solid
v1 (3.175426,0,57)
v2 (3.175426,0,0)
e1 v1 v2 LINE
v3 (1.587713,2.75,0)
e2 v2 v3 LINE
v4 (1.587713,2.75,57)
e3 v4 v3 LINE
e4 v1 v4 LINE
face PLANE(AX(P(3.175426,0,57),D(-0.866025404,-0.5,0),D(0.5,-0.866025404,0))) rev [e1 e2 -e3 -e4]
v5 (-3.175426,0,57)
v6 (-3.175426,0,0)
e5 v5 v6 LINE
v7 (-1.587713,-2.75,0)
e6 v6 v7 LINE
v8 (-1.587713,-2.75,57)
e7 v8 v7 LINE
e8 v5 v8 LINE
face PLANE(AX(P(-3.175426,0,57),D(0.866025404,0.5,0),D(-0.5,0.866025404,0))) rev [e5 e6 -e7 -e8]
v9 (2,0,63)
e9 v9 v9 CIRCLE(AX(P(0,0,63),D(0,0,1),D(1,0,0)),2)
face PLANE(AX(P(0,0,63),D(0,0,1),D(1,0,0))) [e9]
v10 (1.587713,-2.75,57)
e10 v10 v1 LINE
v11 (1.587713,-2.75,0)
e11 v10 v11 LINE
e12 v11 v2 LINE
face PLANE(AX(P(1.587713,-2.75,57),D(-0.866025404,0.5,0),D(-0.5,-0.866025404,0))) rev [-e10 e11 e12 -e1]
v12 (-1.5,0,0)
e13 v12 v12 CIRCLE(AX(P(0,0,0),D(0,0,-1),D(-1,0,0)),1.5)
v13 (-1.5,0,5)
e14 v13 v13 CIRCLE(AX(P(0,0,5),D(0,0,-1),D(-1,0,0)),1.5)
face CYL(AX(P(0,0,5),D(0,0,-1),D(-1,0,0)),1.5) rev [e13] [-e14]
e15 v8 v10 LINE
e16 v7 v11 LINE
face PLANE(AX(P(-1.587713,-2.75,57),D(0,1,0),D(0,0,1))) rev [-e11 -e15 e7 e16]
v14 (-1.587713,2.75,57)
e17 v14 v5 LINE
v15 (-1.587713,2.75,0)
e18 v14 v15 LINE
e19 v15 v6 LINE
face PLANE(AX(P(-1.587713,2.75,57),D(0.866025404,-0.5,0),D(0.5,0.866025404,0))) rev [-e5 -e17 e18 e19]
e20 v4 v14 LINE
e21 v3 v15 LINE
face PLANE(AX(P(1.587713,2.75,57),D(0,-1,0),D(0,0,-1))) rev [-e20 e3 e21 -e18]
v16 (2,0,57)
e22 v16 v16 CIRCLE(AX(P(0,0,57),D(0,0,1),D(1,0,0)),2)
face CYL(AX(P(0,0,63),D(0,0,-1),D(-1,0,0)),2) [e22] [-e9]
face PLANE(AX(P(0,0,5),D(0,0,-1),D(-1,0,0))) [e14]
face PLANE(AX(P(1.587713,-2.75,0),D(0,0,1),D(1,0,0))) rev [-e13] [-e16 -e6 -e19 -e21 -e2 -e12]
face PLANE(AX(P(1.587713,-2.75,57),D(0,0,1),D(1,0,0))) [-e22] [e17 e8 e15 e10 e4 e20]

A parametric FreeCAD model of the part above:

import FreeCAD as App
import Part
import Sketcher
Q = App.Units.Quantity

doc = App.newDocument("Part")
body = doc.addObject("PartDesign::Body", "Body")

# Sketch on XY plane
sketch1 = body.newObject("Sketcher::SketchObject", "Sketch")
sketch1.AttachmentSupport = (doc.getObject("XY_Plane"), [""])
sketch1.MapMode = "FlatFace"
sketch1.addGeometry([
    Part.LineSegment(App.Vector(1.6, -2.8, 0), App.Vector(3.2, 0, 0)),  # 0
    Part.LineSegment(App.Vector(3.2, 0, 0), App.Vector(1.6, 2.8, 0)),  # 1
    Part.LineSegment(App.Vector(1.6, 2.8, 0), App.Vector(-1.6, 2.8, 0)),  # 2
    Part.LineSegment(App.Vector(-1.6, 2.8, 0), App.Vector(-3.2, 0, 0)),  # 3
    Part.LineSegment(App.Vector(-3.2, 0, 0), App.Vector(-1.6, -2.8, 0)),  # 4
    Part.LineSegment(App.Vector(-1.6, -2.8, 0), App.Vector(1.6, -2.8, 0)),  # 5
], False)
sketch1.addConstraint([
    Sketcher.Constraint("Coincident", 0, 2, 1, 1),
    Sketcher.Constraint("Coincident", 1, 2, 2, 1),
    Sketcher.Constraint("Coincident", 2, 2, 3, 1),
    Sketcher.Constraint("Coincident", 3, 2, 4, 1),
    Sketcher.Constraint("Coincident", 4, 2, 5, 1),
    Sketcher.Constraint("Coincident", 5, 2, 0, 1),
    Sketcher.Constraint("Horizontal", 2),
    Sketcher.Constraint("Horizontal", 5),
    Sketcher.Constraint("Symmetric", 0, 2, 3, 2, -1, 1),
    Sketcher.Constraint("Symmetric", 1, 2, 4, 2, -1, 1),
    Sketcher.Constraint("PointOnObject", 0, 2, -1),
    Sketcher.Constraint("Parallel", 0, 3),
    Sketcher.Constraint("Vertical", 2, 2, 4, 2),
    Sketcher.Constraint("Angle", 0, Q("60 deg")),
    Sketcher.Constraint("DistanceY", 4, 2, 2, 2, Q("5.5 mm")),
    Sketcher.Constraint("DistanceX", 2, 2, 2, 1, Q("3.175426 mm")),
])
pad1 = body.newObject("PartDesign::Pad", "Pad")
pad1.Profile = sketch1
pad1.Length = 57

# Sketch on XY plane
sketch2 = body.newObject("Sketcher::SketchObject", "Sketch001")
sketch2.AttachmentSupport = (doc.getObject("XY_Plane"), [""])
sketch2.MapMode = "FlatFace"
sketch2.AttachmentOffset = App.Placement(App.Vector(0, 0, 57), App.Rotation())
sketch2.addGeometry(Part.Circle(App.Vector(0, 0, 0), App.Vector(0, 0, 1), 2), False)
sketch2.addConstraint([
    Sketcher.Constraint("Coincident", 0, 3, -1, 1),
    Sketcher.Constraint("Diameter", 0, Q("4 mm")),
])
pad2 = body.newObject("PartDesign::Pad", "Pad001")
pad2.Profile = sketch2
pad2.Length = 6

# Sketch on XY plane
sketch3 = body.newObject("Sketcher::SketchObject", "Sketch002")
sketch3.AttachmentSupport = (doc.getObject("XY_Plane"), [""])
sketch3.MapMode = "FlatFace"
sketch3.addGeometry(Part.Circle(App.Vector(0, 0, 0), App.Vector(0, 0, 1), 1.5), False)
sketch3.addConstraint([
    Sketcher.Constraint("Coincident", 0, 3, -1, 1),
    Sketcher.Constraint("Diameter", 0, Q("3 mm")),
])
pocket1 = body.newObject("PartDesign::Pocket", "Pocket")
pocket1.Profile = sketch3
pocket1.Length = 5
pocket1.Reversed = True

doc.recompute()
